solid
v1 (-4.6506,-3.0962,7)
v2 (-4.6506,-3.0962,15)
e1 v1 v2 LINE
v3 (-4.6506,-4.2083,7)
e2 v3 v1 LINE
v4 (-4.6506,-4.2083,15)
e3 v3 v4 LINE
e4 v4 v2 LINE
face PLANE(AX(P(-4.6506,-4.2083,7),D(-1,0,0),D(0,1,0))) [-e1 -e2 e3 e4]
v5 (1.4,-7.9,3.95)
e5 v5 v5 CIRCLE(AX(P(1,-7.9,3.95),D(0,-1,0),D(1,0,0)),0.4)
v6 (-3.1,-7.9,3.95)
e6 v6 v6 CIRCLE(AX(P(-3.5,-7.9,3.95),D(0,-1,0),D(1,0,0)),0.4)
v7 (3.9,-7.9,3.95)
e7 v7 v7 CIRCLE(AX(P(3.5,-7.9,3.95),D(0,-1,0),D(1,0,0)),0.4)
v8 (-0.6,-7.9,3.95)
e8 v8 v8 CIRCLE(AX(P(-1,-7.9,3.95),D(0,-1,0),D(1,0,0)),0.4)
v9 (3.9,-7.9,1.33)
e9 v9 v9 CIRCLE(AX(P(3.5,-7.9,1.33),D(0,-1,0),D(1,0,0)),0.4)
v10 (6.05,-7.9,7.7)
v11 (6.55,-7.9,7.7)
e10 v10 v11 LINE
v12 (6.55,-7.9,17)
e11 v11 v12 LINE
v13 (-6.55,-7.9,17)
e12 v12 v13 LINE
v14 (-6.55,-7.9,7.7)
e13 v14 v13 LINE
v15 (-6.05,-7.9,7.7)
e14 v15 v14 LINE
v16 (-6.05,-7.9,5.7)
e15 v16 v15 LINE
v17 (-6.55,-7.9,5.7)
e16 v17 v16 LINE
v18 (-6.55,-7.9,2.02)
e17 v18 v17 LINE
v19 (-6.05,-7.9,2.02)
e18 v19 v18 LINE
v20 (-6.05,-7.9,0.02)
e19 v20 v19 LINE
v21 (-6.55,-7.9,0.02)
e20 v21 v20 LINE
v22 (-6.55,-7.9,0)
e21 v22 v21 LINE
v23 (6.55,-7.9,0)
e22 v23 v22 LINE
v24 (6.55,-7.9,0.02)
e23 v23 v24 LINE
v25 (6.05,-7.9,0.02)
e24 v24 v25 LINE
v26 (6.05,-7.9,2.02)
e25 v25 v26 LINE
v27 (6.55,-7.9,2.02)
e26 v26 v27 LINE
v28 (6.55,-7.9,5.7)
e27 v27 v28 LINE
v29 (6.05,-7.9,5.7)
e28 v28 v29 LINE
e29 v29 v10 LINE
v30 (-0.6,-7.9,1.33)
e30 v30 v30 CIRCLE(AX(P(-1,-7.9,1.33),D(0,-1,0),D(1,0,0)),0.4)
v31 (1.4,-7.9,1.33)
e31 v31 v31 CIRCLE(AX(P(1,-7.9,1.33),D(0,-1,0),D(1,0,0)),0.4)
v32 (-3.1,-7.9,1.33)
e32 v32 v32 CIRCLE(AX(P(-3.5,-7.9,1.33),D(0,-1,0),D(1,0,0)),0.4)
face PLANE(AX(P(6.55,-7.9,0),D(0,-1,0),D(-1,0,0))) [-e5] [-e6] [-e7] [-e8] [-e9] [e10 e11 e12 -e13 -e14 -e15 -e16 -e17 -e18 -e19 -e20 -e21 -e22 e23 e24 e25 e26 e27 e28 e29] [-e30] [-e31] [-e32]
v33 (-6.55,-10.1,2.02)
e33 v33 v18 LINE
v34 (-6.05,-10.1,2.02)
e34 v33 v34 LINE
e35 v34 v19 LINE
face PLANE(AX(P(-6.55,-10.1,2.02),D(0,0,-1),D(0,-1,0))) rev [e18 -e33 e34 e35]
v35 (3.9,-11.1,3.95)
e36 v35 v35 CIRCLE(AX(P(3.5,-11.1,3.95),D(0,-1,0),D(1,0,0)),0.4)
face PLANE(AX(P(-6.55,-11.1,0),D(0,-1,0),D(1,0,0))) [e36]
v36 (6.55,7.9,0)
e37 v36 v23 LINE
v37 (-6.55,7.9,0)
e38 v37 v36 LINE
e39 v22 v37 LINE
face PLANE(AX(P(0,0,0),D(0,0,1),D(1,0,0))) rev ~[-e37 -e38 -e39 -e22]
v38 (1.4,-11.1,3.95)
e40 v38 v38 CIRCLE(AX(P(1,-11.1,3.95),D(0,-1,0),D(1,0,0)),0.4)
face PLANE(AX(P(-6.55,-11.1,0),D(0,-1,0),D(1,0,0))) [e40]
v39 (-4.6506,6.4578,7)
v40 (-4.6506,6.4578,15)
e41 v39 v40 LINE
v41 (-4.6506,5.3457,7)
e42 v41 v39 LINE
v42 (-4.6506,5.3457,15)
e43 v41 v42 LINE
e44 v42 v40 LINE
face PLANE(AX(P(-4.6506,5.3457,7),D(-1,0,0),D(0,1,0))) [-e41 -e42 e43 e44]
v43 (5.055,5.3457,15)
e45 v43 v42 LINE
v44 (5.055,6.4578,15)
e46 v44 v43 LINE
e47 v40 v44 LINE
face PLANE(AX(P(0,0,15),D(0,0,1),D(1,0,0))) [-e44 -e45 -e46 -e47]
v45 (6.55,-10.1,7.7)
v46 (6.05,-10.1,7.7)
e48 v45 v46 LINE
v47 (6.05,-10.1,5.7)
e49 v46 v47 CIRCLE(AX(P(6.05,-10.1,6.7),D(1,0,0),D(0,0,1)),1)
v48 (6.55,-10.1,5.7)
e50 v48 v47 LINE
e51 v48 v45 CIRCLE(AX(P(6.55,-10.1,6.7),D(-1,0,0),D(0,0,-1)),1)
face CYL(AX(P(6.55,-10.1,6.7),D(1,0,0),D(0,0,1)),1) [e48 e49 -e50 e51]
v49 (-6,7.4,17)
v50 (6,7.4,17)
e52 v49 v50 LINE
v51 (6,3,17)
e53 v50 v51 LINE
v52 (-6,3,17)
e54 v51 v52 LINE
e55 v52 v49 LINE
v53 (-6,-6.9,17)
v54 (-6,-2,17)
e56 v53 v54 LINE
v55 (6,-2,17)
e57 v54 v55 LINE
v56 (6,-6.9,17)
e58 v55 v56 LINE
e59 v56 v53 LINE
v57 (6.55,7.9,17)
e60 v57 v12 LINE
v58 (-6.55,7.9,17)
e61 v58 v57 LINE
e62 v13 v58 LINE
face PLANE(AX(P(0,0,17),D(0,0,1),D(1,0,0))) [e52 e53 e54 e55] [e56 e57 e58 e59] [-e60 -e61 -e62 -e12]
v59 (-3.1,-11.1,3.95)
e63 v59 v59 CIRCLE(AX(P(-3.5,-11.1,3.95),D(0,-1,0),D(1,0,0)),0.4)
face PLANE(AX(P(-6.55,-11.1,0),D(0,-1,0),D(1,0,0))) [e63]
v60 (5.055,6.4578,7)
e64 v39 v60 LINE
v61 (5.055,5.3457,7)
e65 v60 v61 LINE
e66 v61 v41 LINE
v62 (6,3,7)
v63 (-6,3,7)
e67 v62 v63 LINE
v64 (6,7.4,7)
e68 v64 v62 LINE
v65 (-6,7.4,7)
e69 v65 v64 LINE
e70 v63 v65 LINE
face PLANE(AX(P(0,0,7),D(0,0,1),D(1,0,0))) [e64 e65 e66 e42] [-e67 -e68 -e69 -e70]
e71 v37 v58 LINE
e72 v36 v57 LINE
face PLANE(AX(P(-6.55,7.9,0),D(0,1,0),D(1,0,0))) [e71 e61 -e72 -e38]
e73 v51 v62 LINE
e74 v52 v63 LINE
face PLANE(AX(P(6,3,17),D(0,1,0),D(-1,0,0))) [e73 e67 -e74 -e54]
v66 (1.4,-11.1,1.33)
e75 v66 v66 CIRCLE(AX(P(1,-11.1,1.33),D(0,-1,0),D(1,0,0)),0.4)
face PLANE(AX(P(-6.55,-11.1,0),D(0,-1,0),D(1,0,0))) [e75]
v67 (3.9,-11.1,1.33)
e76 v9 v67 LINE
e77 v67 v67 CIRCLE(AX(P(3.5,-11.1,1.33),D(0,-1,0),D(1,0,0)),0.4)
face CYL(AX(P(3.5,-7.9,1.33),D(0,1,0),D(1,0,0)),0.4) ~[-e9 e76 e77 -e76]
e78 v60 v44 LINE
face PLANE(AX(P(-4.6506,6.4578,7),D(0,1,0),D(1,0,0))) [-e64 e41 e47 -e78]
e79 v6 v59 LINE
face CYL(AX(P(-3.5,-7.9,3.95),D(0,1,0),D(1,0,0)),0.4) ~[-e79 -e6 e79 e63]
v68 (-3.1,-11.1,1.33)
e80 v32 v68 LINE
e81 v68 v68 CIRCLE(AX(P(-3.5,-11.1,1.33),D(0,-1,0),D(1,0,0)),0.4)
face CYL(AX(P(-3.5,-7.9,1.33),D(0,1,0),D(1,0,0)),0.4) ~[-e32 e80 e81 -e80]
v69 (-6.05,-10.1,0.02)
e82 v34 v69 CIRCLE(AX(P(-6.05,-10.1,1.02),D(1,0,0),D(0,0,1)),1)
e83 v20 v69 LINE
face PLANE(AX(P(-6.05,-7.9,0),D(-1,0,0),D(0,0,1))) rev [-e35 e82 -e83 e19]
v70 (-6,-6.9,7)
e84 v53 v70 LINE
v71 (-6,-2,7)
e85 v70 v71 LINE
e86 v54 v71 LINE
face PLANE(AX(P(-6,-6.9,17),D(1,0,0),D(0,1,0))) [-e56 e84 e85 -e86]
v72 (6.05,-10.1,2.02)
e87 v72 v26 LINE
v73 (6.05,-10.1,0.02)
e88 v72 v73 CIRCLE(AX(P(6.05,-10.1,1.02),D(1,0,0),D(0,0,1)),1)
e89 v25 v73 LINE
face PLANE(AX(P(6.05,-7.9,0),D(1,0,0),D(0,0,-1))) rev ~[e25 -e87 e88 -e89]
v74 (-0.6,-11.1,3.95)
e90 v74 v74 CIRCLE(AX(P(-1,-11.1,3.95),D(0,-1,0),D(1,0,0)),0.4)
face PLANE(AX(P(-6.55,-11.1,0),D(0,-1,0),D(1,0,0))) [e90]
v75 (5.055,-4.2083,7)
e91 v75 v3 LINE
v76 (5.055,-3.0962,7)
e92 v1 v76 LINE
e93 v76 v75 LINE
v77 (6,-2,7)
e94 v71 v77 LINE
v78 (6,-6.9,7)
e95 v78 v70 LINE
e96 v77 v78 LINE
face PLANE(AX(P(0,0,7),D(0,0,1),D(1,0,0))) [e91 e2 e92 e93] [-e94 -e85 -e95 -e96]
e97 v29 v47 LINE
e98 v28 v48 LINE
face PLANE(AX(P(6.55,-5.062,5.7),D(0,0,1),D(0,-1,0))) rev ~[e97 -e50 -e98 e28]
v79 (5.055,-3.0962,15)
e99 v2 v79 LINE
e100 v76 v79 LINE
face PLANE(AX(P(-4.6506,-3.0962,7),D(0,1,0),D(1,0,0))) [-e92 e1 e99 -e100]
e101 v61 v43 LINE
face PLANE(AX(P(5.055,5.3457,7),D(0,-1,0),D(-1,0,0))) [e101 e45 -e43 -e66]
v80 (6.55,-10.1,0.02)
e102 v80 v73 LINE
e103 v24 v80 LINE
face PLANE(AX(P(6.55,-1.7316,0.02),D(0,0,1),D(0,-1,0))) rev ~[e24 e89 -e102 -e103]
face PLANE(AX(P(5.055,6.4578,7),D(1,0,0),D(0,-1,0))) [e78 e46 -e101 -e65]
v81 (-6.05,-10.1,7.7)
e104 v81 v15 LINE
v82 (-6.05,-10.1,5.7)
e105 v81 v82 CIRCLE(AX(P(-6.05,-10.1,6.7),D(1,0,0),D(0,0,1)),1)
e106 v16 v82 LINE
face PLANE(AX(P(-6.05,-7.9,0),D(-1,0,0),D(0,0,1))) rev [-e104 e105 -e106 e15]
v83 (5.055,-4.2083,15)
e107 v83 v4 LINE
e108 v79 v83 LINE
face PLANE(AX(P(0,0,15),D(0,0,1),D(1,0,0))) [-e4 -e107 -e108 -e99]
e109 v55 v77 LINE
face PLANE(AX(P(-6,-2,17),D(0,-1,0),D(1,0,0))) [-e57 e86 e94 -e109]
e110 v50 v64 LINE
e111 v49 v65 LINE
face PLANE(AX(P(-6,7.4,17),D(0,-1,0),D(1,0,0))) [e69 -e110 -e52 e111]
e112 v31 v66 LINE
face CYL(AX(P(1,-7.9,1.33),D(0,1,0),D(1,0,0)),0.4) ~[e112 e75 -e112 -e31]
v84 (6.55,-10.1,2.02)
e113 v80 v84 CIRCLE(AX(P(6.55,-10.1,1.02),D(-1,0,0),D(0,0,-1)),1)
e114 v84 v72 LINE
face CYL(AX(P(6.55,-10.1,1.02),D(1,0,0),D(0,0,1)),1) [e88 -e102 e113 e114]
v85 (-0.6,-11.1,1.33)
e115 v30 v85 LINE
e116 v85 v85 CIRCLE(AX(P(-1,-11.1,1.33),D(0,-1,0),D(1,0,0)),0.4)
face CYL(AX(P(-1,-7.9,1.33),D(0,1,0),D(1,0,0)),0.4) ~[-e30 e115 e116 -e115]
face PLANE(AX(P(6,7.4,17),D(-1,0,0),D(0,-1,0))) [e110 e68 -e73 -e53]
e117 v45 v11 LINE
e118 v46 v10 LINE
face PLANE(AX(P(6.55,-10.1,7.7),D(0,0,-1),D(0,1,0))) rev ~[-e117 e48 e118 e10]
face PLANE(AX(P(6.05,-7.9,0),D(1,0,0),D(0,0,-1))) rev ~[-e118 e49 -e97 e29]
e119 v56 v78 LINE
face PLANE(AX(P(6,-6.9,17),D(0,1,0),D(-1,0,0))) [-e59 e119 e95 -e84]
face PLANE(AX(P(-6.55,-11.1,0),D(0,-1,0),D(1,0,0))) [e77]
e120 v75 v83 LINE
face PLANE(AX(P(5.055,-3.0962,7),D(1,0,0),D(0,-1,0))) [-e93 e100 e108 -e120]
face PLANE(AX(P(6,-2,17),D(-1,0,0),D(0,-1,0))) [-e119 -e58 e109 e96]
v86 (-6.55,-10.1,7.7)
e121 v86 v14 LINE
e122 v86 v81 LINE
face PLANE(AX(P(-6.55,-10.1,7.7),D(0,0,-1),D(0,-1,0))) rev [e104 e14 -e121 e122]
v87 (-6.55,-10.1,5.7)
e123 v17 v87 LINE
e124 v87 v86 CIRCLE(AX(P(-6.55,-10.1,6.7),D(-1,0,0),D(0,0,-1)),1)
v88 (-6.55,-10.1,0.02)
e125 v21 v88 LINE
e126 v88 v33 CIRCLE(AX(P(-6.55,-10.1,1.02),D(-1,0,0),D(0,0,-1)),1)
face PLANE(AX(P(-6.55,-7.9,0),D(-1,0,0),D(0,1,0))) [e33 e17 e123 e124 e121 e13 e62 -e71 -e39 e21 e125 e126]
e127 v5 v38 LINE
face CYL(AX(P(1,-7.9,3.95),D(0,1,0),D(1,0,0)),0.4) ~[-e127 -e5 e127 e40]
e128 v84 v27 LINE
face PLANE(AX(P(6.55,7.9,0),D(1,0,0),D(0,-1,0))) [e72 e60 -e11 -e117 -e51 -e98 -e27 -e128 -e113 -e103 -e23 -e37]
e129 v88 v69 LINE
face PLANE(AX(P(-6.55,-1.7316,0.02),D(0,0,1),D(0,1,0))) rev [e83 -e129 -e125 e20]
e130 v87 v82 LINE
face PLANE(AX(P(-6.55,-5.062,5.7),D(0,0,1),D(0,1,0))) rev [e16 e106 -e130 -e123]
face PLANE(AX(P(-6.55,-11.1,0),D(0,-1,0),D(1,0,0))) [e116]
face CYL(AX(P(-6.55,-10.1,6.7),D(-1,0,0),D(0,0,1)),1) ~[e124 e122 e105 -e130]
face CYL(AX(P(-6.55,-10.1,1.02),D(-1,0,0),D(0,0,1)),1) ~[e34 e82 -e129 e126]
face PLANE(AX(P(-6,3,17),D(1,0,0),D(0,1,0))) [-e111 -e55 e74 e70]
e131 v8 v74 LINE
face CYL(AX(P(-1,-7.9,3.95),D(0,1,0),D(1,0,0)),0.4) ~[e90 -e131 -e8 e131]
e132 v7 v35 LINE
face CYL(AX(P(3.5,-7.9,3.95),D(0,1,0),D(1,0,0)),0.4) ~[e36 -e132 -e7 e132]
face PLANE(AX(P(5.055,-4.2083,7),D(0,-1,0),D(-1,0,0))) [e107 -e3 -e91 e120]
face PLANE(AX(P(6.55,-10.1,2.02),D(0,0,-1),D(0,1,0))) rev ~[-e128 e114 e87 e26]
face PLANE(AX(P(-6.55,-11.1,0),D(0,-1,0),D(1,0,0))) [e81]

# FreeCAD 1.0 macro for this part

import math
import FreeCAD as App
import Part
import Sketcher

V = App.Vector
Q = App.Units.Quantity


def add_polygon(sketch, points):
    """Adds a closed chain of lines whose ends are joined by coincident constraints."""
    first, n = sketch.GeometryCount, len(points)
    for a, b in zip(points, points[1:] + points[:1]):
        sketch.addGeometry(Part.LineSegment(App.Vector(*a, 0), App.Vector(*b, 0)), False)
    for i in range(n):
        sketch.addConstraint(Sketcher.Constraint("Coincident", first + i, 2, first + (i + 1) % n, 1))

doc = App.newDocument("Part")
params = doc.addObject("Spreadsheet::Sheet", "Params")
for row, (alias, value) in enumerate([
    ("sketch1_width", "13.1 mm"),
    ("sketch1_height", "15.8 mm"),
    ("pad1_length", "17 mm"),
    ("sketch2_width", "12 mm"),
    ("sketch2_height", "4.4 mm"),
    ("sketch2_height2", "4.9 mm"),
    ("pocket1_length", "10 mm"),
    ("pad2_length", "8 mm"),
    ("sketch4_radius", "1 mm"),
    ("pad3_length", "0.5 mm"),
    ("sketch5_diameter", "0.8 mm"),
    ("pad4_length", "3.2 mm"),
], start=1):
    params.set(f"A{row}", alias)
    params.set(f"B{row}", "=" + value)
    params.setAlias(f"B{row}", alias)

body = doc.addObject("PartDesign::Body", "Body")

# Sketch on XY plane
sketch1 = doc.addObject("Sketcher::SketchObject", "Sketch")
body.addObject(sketch1)
sketch1.AttachmentSupport = (doc.XY_Plane, [""])
sketch1.MapMode = "FlatFace"
add_polygon(sketch1, [(7, 8), (-7, 8), (-7, -8), (7, -8)])  # lines 0-3
sketch1.addConstraint([
    Sketcher.Constraint("Horizontal", 0),
    Sketcher.Constraint("Vertical", 1),
    Sketcher.Constraint("Horizontal", 2),
    Sketcher.Constraint("Vertical", 3),
    Sketcher.Constraint("Symmetric", 0, 2, 2, 2, -1, 1),
    Sketcher.Constraint("DistanceX", 0, 2, 0, 1, Q("13.1 mm")),
    Sketcher.Constraint("DistanceY", 1, 2, 1, 1, Q("15.8 mm")),
])
sketch1.setExpression("Constraints[9]", "Params.sketch1_width")
sketch1.setExpression("Constraints[10]", "Params.sketch1_height")
pad1 = doc.addObject("PartDesign::Pad", "Pad")
body.addObject(pad1)
pad1.Profile = sketch1
pad1.setExpression("Length", "Params.pad1_length")

# Sketch on XY plane
sketch2 = doc.addObject("Sketcher::SketchObject", "Sketch001")
body.addObject(sketch2)
sketch2.AttachmentSupport = (doc.XY_Plane, [""])
sketch2.MapMode = "FlatFace"
sketch2.AttachmentOffset = App.Placement(V(0, 0, 17), App.Rotation())
add_polygon(sketch2, [(6, 7.4), (-6, 7.4), (-6, 3), (6, 3)])  # lines 0-3
add_polygon(sketch2, [(6, -2), (-6, -2), (-6, -6.9), (6, -6.9)])  # lines 4-7
sketch2.addConstraint([
    Sketcher.Constraint("Horizontal", 0),
    Sketcher.Constraint("Vertical", 1),
    Sketcher.Constraint("Horizontal", 2),
    Sketcher.Constraint("Vertical", 3),
    Sketcher.Constraint("Horizontal", 4),
    Sketcher.Constraint("Vertical", 5),
    Sketcher.Constraint("Horizontal", 6),
    Sketcher.Constraint("Vertical", 7),
    Sketcher.Constraint("Vertical", 1, 2, 4, 2),
    Sketcher.Constraint("Vertical", 3, 2, 6, 2),
    Sketcher.Constraint("DistanceX", 0, 2, 0, 1, Q("12 mm")),
    Sketcher.Constraint("DistanceX", 0, 2, -1, 1, Q("6 mm")),
    Sketcher.Constraint("DistanceY", 4, 2, -1, 1, Q("2 mm")),
    Sketcher.Constraint("DistanceY", 4, 2, 1, 2, Q("5 mm")),
    Sketcher.Constraint("DistanceY", 1, 2, 1, 1, Q("4.4 mm")),
    Sketcher.Constraint("DistanceY", 5, 2, 5, 1, Q("4.9 mm")),
])
sketch2.setExpression("Constraints[18]", "Params.sketch2_width")
sketch2.setExpression("Constraints[22]", "Params.sketch2_height")
sketch2.setExpression("Constraints[23]", "Params.sketch2_height2")
pocket1 = doc.addObject("PartDesign::Pocket", "Pocket")
body.addObject(pocket1)
pocket1.Profile = sketch2
pocket1.setExpression("Length", "Params.pocket1_length")

# Sketch on XY plane
sketch3 = doc.addObject("Sketcher::SketchObject", "Sketch002")
body.addObject(sketch3)
sketch3.AttachmentSupport = (doc.XY_Plane, [""])
sketch3.MapMode = "FlatFace"
sketch3.AttachmentOffset = App.Placement(V(0, 0, 7), App.Rotation())
add_polygon(sketch3, [(5.1, 6.5), (-4.7, 6.5), (-4.7, 5.3), (5.1, 5.3)])  # lines 0-3
add_polygon(sketch3, [(5.1, -3.1), (-4.7, -3.1), (-4.7, -4.2), (5.1, -4.2)])  # lines 4-7
sketch3.addConstraint([
    Sketcher.Constraint("Horizontal", 0),
    Sketcher.Constraint("Vertical", 1),
    Sketcher.Constraint("Horizontal", 2),
    Sketcher.Constraint("Vertical", 3),
    Sketcher.Constraint("Horizontal", 4),
    Sketcher.Constraint("Vertical", 5),
    Sketcher.Constraint("Horizontal", 6),
    Sketcher.Constraint("Vertical", 7),
    Sketcher.Constraint("Vertical", 1, 2, 4, 2),
    Sketcher.Constraint("Vertical", 3, 2, 6, 2),
    Sketcher.Constraint("Equal", 3, 5),
    Sketcher.Constraint("DistanceY", 1, 2, 1, 1, Q("1.112 mm")),
    Sketcher.Constraint("DistanceX", 0, 2, 0, 1, Q("9.7056 mm")),
    Sketcher.Constraint("DistanceX", -1, 1, 2, 2, Q("5.055 mm")),
    Sketcher.Constraint("DistanceY", 4, 2, 1, 2, Q("8.442 mm")),
    Sketcher.Constraint("DistanceY", -1, 1, 0, 2, Q("6.4578 mm")),
])
pad2 = doc.addObject("PartDesign::Pad", "Pad001")
body.addObject(pad2)
pad2.Profile = sketch3
pad2.setExpression("Length", "Params.pad2_length")

# Sketch on YZ plane
sketch4 = doc.addObject("Sketcher::SketchObject", "Sketch003")
body.addObject(sketch4)
sketch4.AttachmentSupport = (doc.YZ_Plane, [""])
sketch4.MapMode = "FlatFace"
sketch4.AttachmentOffset = App.Placement(V(0, 0, 6.55), App.Rotation())
sketch4.addGeometry([
    Part.LineSegment(V(-5.1, 5.7, 0), V(-5.1, 7.7, 0)),  # 0
    Part.LineSegment(V(-5.1, 7.7, 0), V(-10.1, 7.7, 0)),  # 1
    Part.ArcOfCircle(Part.Circle(V(-10.1, 6.7, 0), V(0, 0, 1), 1), math.radians(90), math.radians(270)),  # 2
    Part.LineSegment(V(-10.1, 5.7, 0), V(-5.1, 5.7, 0)),  # 3
    Part.LineSegment(V(-1.7, 0, 0), V(-1.7, 2, 0)),  # 4
    Part.LineSegment(V(-1.7, 2, 0), V(-10.1, 2, 0)),  # 5
    Part.ArcOfCircle(Part.Circle(V(-10.1, 1, 0), V(0, 0, 1), 1), math.radians(90), math.radians(270)),  # 6
    Part.LineSegment(V(-10.1, 0, 0), V(-1.7, 0, 0)),  # 7
], False)
sketch4.addConstraint([
    Sketcher.Constraint("Coincident", 0, 2, 1, 1),
    Sketcher.Constraint("Tangent", 1, 2, 2, 1),
    Sketcher.Constraint("Tangent", 2, 2, 3, 1),
    Sketcher.Constraint("Coincident", 3, 2, 0, 1),
    Sketcher.Constraint("Coincident", 4, 2, 5, 1),
    Sketcher.Constraint("Tangent", 5, 2, 6, 1),
    Sketcher.Constraint("Tangent", 6, 2, 7, 1),
    Sketcher.Constraint("Coincident", 7, 2, 4, 1),
    Sketcher.Constraint("Vertical", 0),
    Sketcher.Constraint("Horizontal", 1),
    Sketcher.Constraint("Horizontal", 3),
    Sketcher.Constraint("Vertical", 4),
    Sketcher.Constraint("Horizontal", 5),
    Sketcher.Constraint("Horizontal", 7),
    Sketcher.Constraint("Equal", 2, 6),
    Sketcher.Constraint("Vertical", 2, 3, 6, 3),
    Sketcher.Constraint("Radius", 2, Q("1 mm")),
    Sketcher.Constraint("DistanceY", 4, 2, 3, 2, Q("3.68 mm")),
    Sketcher.Constraint("DistanceX", 2, 3, -1, 1, Q("10.1 mm")),
    Sketcher.Constraint("DistanceY", -1, 1, 2, 3, Q("6.7 mm")),
    Sketcher.Constraint("DistanceX", 1, 2, 1, 1, Q("5.038 mm")),
    Sketcher.Constraint("DistanceX", 5, 2, 5, 1, Q("8.3684 mm")),
])
sketch4.setExpression("Constraints[16]", "Params.sketch4_radius")
pad3 = doc.addObject("PartDesign::Pad", "Pad002")
body.addObject(pad3)
pad3.Profile = sketch4
pad3.setExpression("Length", "Params.pad3_length")
pad3.Reversed = True

# Sketch on XZ plane
sketch5 = doc.addObject("Sketcher::SketchObject", "Sketch004")
body.addObject(sketch5)
sketch5.AttachmentSupport = (doc.XZ_Plane, [""])
sketch5.MapMode = "FlatFace"
sketch5.AttachmentOffset = App.Placement(V(0, 0, 7.9), App.Rotation())
sketch5.addGeometry([
    Part.Circle(V(-1, 1.33, 0), V(0, 0, 1), 0.4),  # 0
    Part.Circle(V(-1, 3.95, 0), V(0, 0, 1), 0.4),  # 1
    Part.Circle(V(1, 1.33, 0), V(0, 0, 1), 0.4),  # 2
    Part.Circle(V(1, 3.95, 0), V(0, 0, 1), 0.4),  # 3
    Part.Circle(V(-3.5, 1.33, 0), V(0, 0, 1), 0.4),  # 4
    Part.Circle(V(-3.5, 3.95, 0), V(0, 0, 1), 0.4),  # 5
    Part.Circle(V(3.5, 3.95, 0), V(0, 0, 1), 0.4),  # 6
    Part.Circle(V(3.5, 1.33, 0), V(0, 0, 1), 0.4),  # 7
], False)
sketch5.addConstraint([
    Sketcher.Constraint("Equal", 0, 1),
    Sketcher.Constraint("Equal", 1, 2),
    Sketcher.Constraint("Equal", 2, 3),
    Sketcher.Constraint("Equal", 3, 4),
    Sketcher.Constraint("Equal", 4, 5),
    Sketcher.Constraint("Equal", 5, 6),
    Sketcher.Constraint("Equal", 6, 7),
    Sketcher.Constraint("Symmetric", 0, 3, 2, 3, -2),
    Sketcher.Constraint("Symmetric", 1, 3, 3, 3, -2),
    Sketcher.Constraint("Symmetric", 5, 3, 6, 3, -2),
    Sketcher.Constraint("Symmetric", 4, 3, 7, 3, -2),
    Sketcher.Constraint("Horizontal", 2, 3, 4, 3),
    Sketcher.Constraint("Horizontal", 3, 3, 5, 3),
    Sketcher.Constraint("Vertical", 0, 3, 1, 3),
    Sketcher.Constraint("Vertical", 4, 3, 5, 3),
    Sketcher.Constraint("Diameter", 0, Q("0.8 mm")),
    Sketcher.Constraint("DistanceX", 0, 3, -1, 1, Q("1 mm")),
    Sketcher.Constraint("DistanceX", 4, 3, 0, 3, Q("2.5 mm")),
    Sketcher.Constraint("DistanceY", 0, 3, 1, 3, Q("2.62 mm")),
    Sketcher.Constraint("DistanceY", -1, 1, 0, 3, Q("1.33 mm")),
])
sketch5.setExpression("Constraints[15]", "Params.sketch5_diameter")
pad4 = doc.addObject("PartDesign::Pad", "Pad003")
body.addObject(pad4)
pad4.Profile = sketch5
pad4.setExpression("Length", "Params.pad4_length")
doc.recompute()

mirrored = doc.addObject("PartDesign::Mirrored", "Mirrored")
body.addObject(mirrored)
mirrored.Originals = [pad3]
mirrored.MirrorPlane = (doc.YZ_Plane, [""])
body.Tip = mirrored

doc.recompute()
